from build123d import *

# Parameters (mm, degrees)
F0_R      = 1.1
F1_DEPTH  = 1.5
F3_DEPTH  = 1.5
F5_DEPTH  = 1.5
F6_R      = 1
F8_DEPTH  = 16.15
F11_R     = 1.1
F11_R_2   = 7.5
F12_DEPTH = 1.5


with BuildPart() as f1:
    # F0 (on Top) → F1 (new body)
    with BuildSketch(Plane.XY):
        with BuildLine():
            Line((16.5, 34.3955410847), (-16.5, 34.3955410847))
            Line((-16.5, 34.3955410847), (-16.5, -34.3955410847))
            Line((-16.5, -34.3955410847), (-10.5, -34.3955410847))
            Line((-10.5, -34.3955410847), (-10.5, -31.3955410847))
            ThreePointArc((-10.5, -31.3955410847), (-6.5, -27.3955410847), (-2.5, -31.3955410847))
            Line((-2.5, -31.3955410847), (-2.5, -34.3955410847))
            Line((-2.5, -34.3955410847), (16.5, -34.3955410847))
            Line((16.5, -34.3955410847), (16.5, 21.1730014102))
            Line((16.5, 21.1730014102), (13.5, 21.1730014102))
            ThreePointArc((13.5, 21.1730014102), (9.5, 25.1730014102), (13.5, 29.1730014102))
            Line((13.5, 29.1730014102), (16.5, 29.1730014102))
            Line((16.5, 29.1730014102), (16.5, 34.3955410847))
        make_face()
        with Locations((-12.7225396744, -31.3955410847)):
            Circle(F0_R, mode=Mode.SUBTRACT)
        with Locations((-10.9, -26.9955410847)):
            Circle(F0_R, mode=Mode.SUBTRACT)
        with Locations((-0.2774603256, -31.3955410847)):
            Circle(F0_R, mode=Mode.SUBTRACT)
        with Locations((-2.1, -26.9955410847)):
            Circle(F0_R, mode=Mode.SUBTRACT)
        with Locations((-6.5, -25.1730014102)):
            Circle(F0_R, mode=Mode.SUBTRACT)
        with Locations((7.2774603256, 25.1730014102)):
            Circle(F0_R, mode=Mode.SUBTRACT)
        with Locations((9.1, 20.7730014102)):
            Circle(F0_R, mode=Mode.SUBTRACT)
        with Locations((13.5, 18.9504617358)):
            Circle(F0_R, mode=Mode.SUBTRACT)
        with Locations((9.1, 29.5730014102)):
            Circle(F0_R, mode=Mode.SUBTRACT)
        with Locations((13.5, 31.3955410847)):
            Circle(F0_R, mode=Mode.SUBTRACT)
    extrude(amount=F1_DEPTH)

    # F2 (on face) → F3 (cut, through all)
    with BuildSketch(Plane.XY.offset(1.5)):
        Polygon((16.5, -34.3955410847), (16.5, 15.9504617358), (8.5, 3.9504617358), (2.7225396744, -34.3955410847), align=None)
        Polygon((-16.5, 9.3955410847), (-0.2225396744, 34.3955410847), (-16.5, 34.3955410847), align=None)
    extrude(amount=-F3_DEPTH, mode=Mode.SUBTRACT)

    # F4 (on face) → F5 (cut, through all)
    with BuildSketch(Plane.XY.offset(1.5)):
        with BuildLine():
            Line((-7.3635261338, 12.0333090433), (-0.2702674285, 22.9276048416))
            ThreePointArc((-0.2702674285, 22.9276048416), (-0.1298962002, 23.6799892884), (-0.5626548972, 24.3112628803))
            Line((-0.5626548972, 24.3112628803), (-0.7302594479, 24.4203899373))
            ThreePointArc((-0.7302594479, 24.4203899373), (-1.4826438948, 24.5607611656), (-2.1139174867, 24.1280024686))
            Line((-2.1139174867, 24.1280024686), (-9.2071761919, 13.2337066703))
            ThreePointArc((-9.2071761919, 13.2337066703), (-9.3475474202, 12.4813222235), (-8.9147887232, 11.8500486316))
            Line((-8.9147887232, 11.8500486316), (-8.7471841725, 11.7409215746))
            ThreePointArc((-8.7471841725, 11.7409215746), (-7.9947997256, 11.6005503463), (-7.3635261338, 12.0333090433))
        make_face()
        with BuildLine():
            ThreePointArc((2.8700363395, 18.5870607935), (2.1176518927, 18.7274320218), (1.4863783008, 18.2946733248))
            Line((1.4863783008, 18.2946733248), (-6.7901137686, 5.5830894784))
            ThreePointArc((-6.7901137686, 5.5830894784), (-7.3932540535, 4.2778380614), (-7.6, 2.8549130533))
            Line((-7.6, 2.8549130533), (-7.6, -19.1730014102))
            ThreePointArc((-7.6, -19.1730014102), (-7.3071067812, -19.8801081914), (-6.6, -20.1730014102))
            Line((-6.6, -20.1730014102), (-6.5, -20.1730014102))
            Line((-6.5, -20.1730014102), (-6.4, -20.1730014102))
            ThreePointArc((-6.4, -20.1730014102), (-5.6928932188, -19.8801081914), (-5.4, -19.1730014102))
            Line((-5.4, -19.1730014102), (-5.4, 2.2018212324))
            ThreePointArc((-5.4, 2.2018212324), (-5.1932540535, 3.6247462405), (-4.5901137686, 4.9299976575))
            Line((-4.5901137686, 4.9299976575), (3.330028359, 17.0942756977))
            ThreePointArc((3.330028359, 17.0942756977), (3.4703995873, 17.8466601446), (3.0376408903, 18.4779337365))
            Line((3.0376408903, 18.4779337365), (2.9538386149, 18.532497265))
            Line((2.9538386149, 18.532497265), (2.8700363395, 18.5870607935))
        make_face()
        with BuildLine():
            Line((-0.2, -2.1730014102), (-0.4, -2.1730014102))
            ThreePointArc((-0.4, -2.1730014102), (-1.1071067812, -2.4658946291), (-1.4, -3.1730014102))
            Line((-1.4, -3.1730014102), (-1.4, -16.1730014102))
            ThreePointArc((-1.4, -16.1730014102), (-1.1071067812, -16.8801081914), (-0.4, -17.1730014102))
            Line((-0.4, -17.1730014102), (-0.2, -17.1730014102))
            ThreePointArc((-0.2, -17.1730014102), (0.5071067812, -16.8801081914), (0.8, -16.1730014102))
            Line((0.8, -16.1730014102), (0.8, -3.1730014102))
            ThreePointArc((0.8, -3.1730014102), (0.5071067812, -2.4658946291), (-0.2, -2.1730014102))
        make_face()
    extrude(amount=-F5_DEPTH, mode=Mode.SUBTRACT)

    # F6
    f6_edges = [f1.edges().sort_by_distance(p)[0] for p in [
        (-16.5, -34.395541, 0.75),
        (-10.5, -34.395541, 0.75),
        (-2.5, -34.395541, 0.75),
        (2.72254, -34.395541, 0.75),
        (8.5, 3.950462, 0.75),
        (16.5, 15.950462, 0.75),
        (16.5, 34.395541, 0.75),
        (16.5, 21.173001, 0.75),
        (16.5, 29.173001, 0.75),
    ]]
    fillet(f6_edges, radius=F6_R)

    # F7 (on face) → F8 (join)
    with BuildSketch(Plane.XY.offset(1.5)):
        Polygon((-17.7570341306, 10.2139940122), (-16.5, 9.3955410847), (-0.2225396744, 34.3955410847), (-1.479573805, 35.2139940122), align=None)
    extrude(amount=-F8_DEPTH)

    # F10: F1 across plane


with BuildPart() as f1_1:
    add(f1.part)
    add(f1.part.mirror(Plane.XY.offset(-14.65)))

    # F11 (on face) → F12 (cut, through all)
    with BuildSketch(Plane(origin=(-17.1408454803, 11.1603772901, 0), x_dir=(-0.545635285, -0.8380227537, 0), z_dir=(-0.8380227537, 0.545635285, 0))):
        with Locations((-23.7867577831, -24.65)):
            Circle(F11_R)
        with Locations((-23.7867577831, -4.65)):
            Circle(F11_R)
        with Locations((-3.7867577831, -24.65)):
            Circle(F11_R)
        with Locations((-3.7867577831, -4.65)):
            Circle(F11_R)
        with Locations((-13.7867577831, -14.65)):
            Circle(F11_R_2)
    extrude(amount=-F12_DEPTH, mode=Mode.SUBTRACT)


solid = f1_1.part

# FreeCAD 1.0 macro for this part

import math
import FreeCAD as App
import Part
import Sketcher
from FreeCAD import Vector


def edges_at(feature, points):
    """Names of the edges that pass closest to the given points."""
    edges = feature.Shape.Edges
    near = lambda p: min(range(len(edges)), key=lambda i: edges[i].distToShape(Part.Vertex(*p))[0])
    return sorted({f"Edge{near(p) + 1}" for p in points})

doc = App.newDocument("Part")
body = doc.addObject("PartDesign::Body", "Body")

# Sketch on XY plane
sketch1 = body.newObject("Sketcher::SketchObject", "Sketch")
sketch1.AttachmentSupport = (doc.getObject("XY_Plane"), [""])
sketch1.MapMode = "FlatFace"
sketch1.addGeometry([
    Part.LineSegment(Vector(16.5, 34.4, 0), Vector(-16.5, 34.4, 0)),  # 0
    Part.LineSegment(Vector(-16.5, 34.4, 0), Vector(-16.5, -34.4, 0)),  # 1
    Part.LineSegment(Vector(-16.5, -34.4, 0), Vector(-10.5, -34.4, 0)),  # 2
    Part.LineSegment(Vector(-10.5, -34.4, 0), Vector(-10.5, -31.4, 0)),  # 3
    Part.ArcOfCircle(Part.Circle(Vector(-6.5, -31.4, 0), Vector(0, 0, 1), 4), math.radians(0), math.radians(180)),  # 4
    Part.LineSegment(Vector(-2.5, -31.4, 0), Vector(-2.5, -34.4, 0)),  # 5
    Part.LineSegment(Vector(-2.5, -34.4, 0), Vector(16.5, -34.4, 0)),  # 6
    Part.LineSegment(Vector(16.5, -34.4, 0), Vector(16.5, 21.2, 0)),  # 7
    Part.LineSegment(Vector(16.5, 21.2, 0), Vector(13.5, 21.2, 0)),  # 8
    Part.ArcOfCircle(Part.Circle(Vector(13.5, 25.2, 0), Vector(0, 0, 1), 4), math.radians(90), math.radians(270)),  # 9
    Part.LineSegment(Vector(13.5, 29.2, 0), Vector(16.5, 29.2, 0)),  # 10
    Part.LineSegment(Vector(16.5, 29.2, 0), Vector(16.5, 34.4, 0)),  # 11
    Part.Circle(Vector(-12.7, -31.4, 0), Vector(0, 0, 1), 1.1),  # 12
    Part.Circle(Vector(-10.9, -27, 0), Vector(0, 0, 1), 1.1),  # 13
    Part.Circle(Vector(-6.5, -25.2, 0), Vector(0, 0, 1), 1.1),  # 14
    Part.Circle(Vector(-0.3, -31.4, 0), Vector(0, 0, 1), 1.1),  # 15
    Part.Circle(Vector(-2.1, -27, 0), Vector(0, 0, 1), 1.1),  # 16
    Part.Circle(Vector(7.3, 25.2, 0), Vector(0, 0, 1), 1.1),  # 17
    Part.Circle(Vector(9.1, 20.8, 0), Vector(0, 0, 1), 1.1),  # 18
    Part.Circle(Vector(13.5, 19, 0), Vector(0, 0, 1), 1.1),  # 19
    Part.Circle(Vector(9.1, 29.6, 0), Vector(0, 0, 1), 1.1),  # 20
    Part.Circle(Vector(13.5, 31.4, 0), Vector(0, 0, 1), 1.1),  # 21
], False)
sketch1.addConstraint([
    Sketcher.Constraint("Coincident", 0, 2, 1, 1),
    Sketcher.Constraint("Coincident", 1, 2, 2, 1),
    Sketcher.Constraint("Coincident", 2, 2, 3, 1),
    Sketcher.Constraint("Tangent", 3, 2, 4, 2),
    Sketcher.Constraint("Tangent", 4, 1, 5, 1),
    Sketcher.Constraint("Coincident", 5, 2, 6, 1),
    Sketcher.Constraint("Coincident", 6, 2, 7, 1),
    Sketcher.Constraint("Coincident", 7, 2, 8, 1),
    Sketcher.Constraint("Tangent", 8, 2, 9, 2),
    Sketcher.Constraint("Tangent", 9, 1, 10, 1),
    Sketcher.Constraint("Coincident", 10, 2, 11, 1),
    Sketcher.Constraint("Coincident", 11, 2, 0, 1),
    Sketcher.Constraint("Horizontal", 0),
    Sketcher.Constraint("Vertical", 1),
    Sketcher.Constraint("Horizontal", 2),
    Sketcher.Constraint("Vertical", 3),
    Sketcher.Constraint("Vertical", 5),
    Sketcher.Constraint("Horizontal", 6),
    Sketcher.Constraint("Vertical", 7),
    Sketcher.Constraint("Horizontal", 8),
    Sketcher.Constraint("Horizontal", 10),
    Sketcher.Constraint("Vertical", 11),
    Sketcher.Constraint("Equal", 4, 9),
    Sketcher.Constraint("Equal", 12, 13),
    Sketcher.Constraint("Equal", 13, 14),
    Sketcher.Constraint("Equal", 14, 15),
    Sketcher.Constraint("Equal", 15, 16),
    Sketcher.Constraint("Equal", 16, 17),
    Sketcher.Constraint("Equal", 17, 18),
    Sketcher.Constraint("Equal", 18, 19),
    Sketcher.Constraint("Equal", 19, 20),
    Sketcher.Constraint("Equal", 20, 21),
    Sketcher.Constraint("Symmetric", 0, 2, 6, 2, -1, 1),
    Sketcher.Constraint("Symmetric", 1, 2, 11, 2, -1, 1),
    Sketcher.Constraint("Horizontal", 4, 3, 12, 3),
    Sketcher.Constraint("Horizontal", 12, 3, 15, 3),
    Sketcher.Constraint("Horizontal", 13, 3, 16, 3),
    Sketcher.Constraint("Horizontal", 9, 3, 17, 3),
    Sketcher.Constraint("Vertical", 4, 3, 14, 3),
    Sketcher.Constraint("Vertical", 9, 3, 19, 3),
    Sketcher.Constraint("Vertical", 18, 3, 20, 3),
    Sketcher.Constraint("Vertical", 19, 3, 21, 3),
    Sketcher.Constraint("Equal", 10, 3),
    Sketcher.Constraint("Radius", 4, 4.0),
    Sketcher.Constraint("Diameter", 12, 2.2),
    Sketcher.Constraint("DistanceX", 0, 2, 0, 1, 33.0),
    Sketcher.Constraint("DistanceX", 2, 1, 2, 2, 6.0),
    Sketcher.Constraint("DistanceX", 8, 2, 8, 1, 3.0),
    Sketcher.Constraint("DistanceX", 13, 3, 18, 3, 20.0),
    Sketcher.Constraint("DistanceY", 21, 3, 0, 2, 3.0),
    Sketcher.Constraint("DistanceX", 13, 3, -1, 1, 10.9),
    Sketcher.Constraint("DistanceX", 16, 3, -1, 1, 2.1),
    Sketcher.Constraint("DistanceY", 12, 3, 13, 3, 4.4),
    Sketcher.Constraint("DistanceY", 18, 3, 17, 3, 4.4),
    Sketcher.Constraint("DistanceY", 17, 3, 20, 3, 4.4),
    Sketcher.Constraint("DistanceY", -1, 1, 9, 3, 25.173001),
    Sketcher.Constraint("DistanceY", 14, 3, -1, 1, 25.173001),
    Sketcher.Constraint("DistanceY", 11, 1, 11, 2, 5.22254),
    Sketcher.Constraint("DistanceX", 12, 3, -1, 1, 12.72254),
    Sketcher.Constraint("DistanceX", 15, 3, -1, 1, 0.27746),
    Sketcher.Constraint("DistanceX", -1, 1, 17, 3, 7.27746),
    Sketcher.Constraint("DistanceY", -1, 1, 19, 3, 18.950462),
])
pad1 = body.newObject("PartDesign::Pad", "Pad")
pad1.Profile = sketch1
pad1.Length = 1.5

# Sketch on XY plane
sketch2 = body.newObject("Sketcher::SketchObject", "Sketch001")
sketch2.AttachmentSupport = (doc.getObject("XY_Plane"), [""])
sketch2.MapMode = "FlatFace"
sketch2.AttachmentOffset = App.Placement(Vector(0, 0, 1.5), App.Rotation())
sketch2.addGeometry([
    Part.LineSegment(Vector(16, -34, 0), Vector(16, 16, 0)),  # 0
    Part.LineSegment(Vector(16, 16, 0), Vector(8, 4, 0)),  # 1
    Part.LineSegment(Vector(8, 4, 0), Vector(3, -34, 0)),  # 2
    Part.LineSegment(Vector(3, -34, 0), Vector(16, -34, 0)),  # 3
    Part.LineSegment(Vector(-16, 9, 0), Vector(0, 34, 0)),  # 4
    Part.LineSegment(Vector(0, 34, 0), Vector(-16, 34, 0)),  # 5
    Part.LineSegment(Vector(-16, 34, 0), Vector(-16, 9, 0)),  # 6
], False)
sketch2.addConstraint([
    Sketcher.Constraint("Coincident", 0, 2, 1, 1),
    Sketcher.Constraint("Coincident", 1, 2, 2, 1),
    Sketcher.Constraint("Coincident", 2, 2, 3, 1),
    Sketcher.Constraint("Coincident", 3, 2, 0, 1),
    Sketcher.Constraint("Coincident", 4, 2, 5, 1),
    Sketcher.Constraint("Coincident", 5, 2, 6, 1),
    Sketcher.Constraint("Coincident", 6, 2, 4, 1),
    Sketcher.Constraint("Vertical", 0),
    Sketcher.Constraint("Horizontal", 3),
    Sketcher.Constraint("Horizontal", 5),
    Sketcher.Constraint("Vertical", 6),
    Sketcher.Constraint("Symmetric", 3, 2, 5, 2, -1, 1),
    Sketcher.Constraint("DistanceY", 6, 2, 6, 1, 25.0),
    Sketcher.Constraint("DistanceX", 1, 2, 0, 2, 8.0),
    Sketcher.Constraint("DistanceY", 1, 2, 0, 2, 12.0),
    Sketcher.Constraint("DistanceX", 5, 2, 0, 2, 33.0),
    Sketcher.Constraint("DistanceX", 3, 1, 3, 2, 13.77746),
    Sketcher.Constraint("DistanceX", 5, 2, 5, 1, 16.27746),
    Sketcher.Constraint("DistanceY", 0, 1, 0, 2, 50.346003),
    Sketcher.Constraint("DistanceY", -1, 1, 0, 2, 15.950462),
])
pocket1 = body.newObject("PartDesign::Pocket", "Pocket")
pocket1.Profile = sketch2
pocket1.Type = "ThroughAll"

# Sketch on XY plane
sketch3 = body.newObject("Sketcher::SketchObject", "Sketch002")
sketch3.AttachmentSupport = (doc.getObject("XY_Plane"), [""])
sketch3.MapMode = "FlatFace"
sketch3.AttachmentOffset = App.Placement(Vector(0, 0, 1.5), App.Rotation())
sketch3.addGeometry([
    Part.LineSegment(Vector(-7.36, 12.03, 0), Vector(-0.27, 22.93, 0)),  # 0
    Part.ArcOfCircle(Part.Circle(Vector(-1.11, 23.47, 0), Vector(0, 0, 1), 1), math.radians(-33), math.radians(57)),  # 1
    Part.LineSegment(Vector(-0.56, 24.31, 0), Vector(-0.73, 24.42, 0)),  # 2
    Part.ArcOfCircle(Part.Circle(Vector(-1.28, 23.58, 0), Vector(0, 0, 1), 1), math.radians(57), math.radians(147)),  # 3
    Part.LineSegment(Vector(-2.11, 24.13, 0), Vector(-9.21, 13.23, 0)),  # 4
    Part.ArcOfCircle(Part.Circle(Vector(-8.37, 12.69, 0), Vector(0, 0, 1), 1), math.radians(147), math.radians(237)),  # 5
    Part.LineSegment(Vector(-8.91, 11.85, 0), Vector(-8.75, 11.74, 0)),  # 6
    Part.ArcOfCircle(Part.Circle(Vector(-8.2, 12.58, 0), Vector(0, 0, 1), 1), math.radians(-123), math.radians(-33)),  # 7
    Part.ArcOfCircle(Part.Circle(Vector(2.32, 17.75, 0), Vector(0, 0, 1), 1), math.radians(57), math.radians(147)),  # 8
    Part.LineSegment(Vector(1.49, 18.29, 0), Vector(-6.79, 5.58, 0)),  # 9
    Part.ArcOfCircle(Part.Circle(Vector(-2.6, 2.85, 0), Vector(0, 0, 1), 5), math.radians(147), math.radians(180)),  # 10
    Part.LineSegment(Vector(-7.6, 2.85, 0), Vector(-7.6, -19.17, 0)),  # 11
    Part.ArcOfCircle(Part.Circle(Vector(-6.6, -19.17, 0), Vector(0, 0, 1), 1), math.radians(180), math.radians(270)),  # 12
    Part.LineSegment(Vector(-6.6, -20.17, 0), Vector(-6.4, -20.17, 0)),  # 13
    Part.ArcOfCircle(Part.Circle(Vector(-6.4, -19.17, 0), Vector(0, 0, 1), 1), math.radians(-90), math.radians(0)),  # 14
    Part.LineSegment(Vector(-5.4, -19.17, 0), Vector(-5.4, 2.2, 0)),  # 15
    Part.ArcOfCircle(Part.Circle(Vector(-0.4, 2.2, 0), Vector(0, 0, 1), 5), math.radians(147), math.radians(180)),  # 16
    Part.LineSegment(Vector(-4.59, 4.93, 0), Vector(3.33, 17.09, 0)),  # 17
    Part.ArcOfCircle(Part.Circle(Vector(2.49, 17.64, 0), Vector(0, 0, 1), 1), math.radians(-33), math.radians(57)),  # 18
    Part.LineSegment(Vector(3.04, 18.48, 0), Vector(2.87, 18.59, 0)),  # 19
    Part.LineSegment(Vector(-0.2, -2.17, 0), Vector(-0.4, -2.17, 0)),  # 20
    Part.ArcOfCircle(Part.Circle(Vector(-0.4, -3.17, 0), Vector(0, 0, 1), 1), math.radians(90), math.radians(180)),  # 21
    Part.LineSegment(Vector(-1.4, -3.17, 0), Vector(-1.4, -16.17, 0)),  # 22
    Part.ArcOfCircle(Part.Circle(Vector(-0.4, -16.17, 0), Vector(0, 0, 1), 1), math.radians(180), math.radians(270)),  # 23
    Part.LineSegment(Vector(-0.4, -17.17, 0), Vector(-0.2, -17.17, 0)),  # 24
    Part.ArcOfCircle(Part.Circle(Vector(-0.2, -16.17, 0), Vector(0, 0, 1), 1), math.radians(-90), math.radians(0)),  # 25
    Part.LineSegment(Vector(0.8, -16.17, 0), Vector(0.8, -3.17, 0)),  # 26
    Part.ArcOfCircle(Part.Circle(Vector(-0.2, -3.17, 0), Vector(0, 0, 1), 1), math.radians(0), math.radians(90)),  # 27
], False)
sketch3.addConstraint([
    Sketcher.Constraint("Tangent", 0, 2, 1, 1),
    Sketcher.Constraint("Tangent", 1, 2, 2, 1),
    Sketcher.Constraint("Tangent", 2, 2, 3, 1),
    Sketcher.Constraint("Tangent", 3, 2, 4, 1),
    Sketcher.Constraint("Tangent", 4, 2, 5, 1),
    Sketcher.Constraint("Tangent", 5, 2, 6, 1),
    Sketcher.Constraint("Tangent", 6, 2, 7, 1),
    Sketcher.Constraint("Tangent", 7, 2, 0, 1),
    Sketcher.Constraint("Tangent", 8, 2, 9, 1),
    Sketcher.Constraint("Tangent", 9, 2, 10, 1),
    Sketcher.Constraint("Tangent", 10, 2, 11, 1),
    Sketcher.Constraint("Tangent", 11, 2, 12, 1),
    Sketcher.Constraint("Tangent", 12, 2, 13, 1),
    Sketcher.Constraint("Tangent", 13, 2, 14, 1),
    Sketcher.Constraint("Tangent", 14, 2, 15, 1),
    Sketcher.Constraint("Tangent", 15, 2, 16, 2),
    Sketcher.Constraint("Tangent", 16, 1, 17, 1),
    Sketcher.Constraint("Tangent", 17, 2, 18, 1),
    Sketcher.Constraint("Tangent", 18, 2, 19, 1),
    Sketcher.Constraint("Tangent", 19, 2, 8, 1),
    Sketcher.Constraint("Tangent", 20, 2, 21, 1),
    Sketcher.Constraint("Tangent", 21, 2, 22, 1),
    Sketcher.Constraint("Tangent", 22, 2, 23, 1),
    Sketcher.Constraint("Tangent", 23, 2, 24, 1),
    Sketcher.Constraint("Tangent", 24, 2, 25, 1),
    Sketcher.Constraint("Tangent", 25, 2, 26, 1),
    Sketcher.Constraint("Tangent", 26, 2, 27, 1),
    Sketcher.Constraint("Tangent", 27, 2, 20, 1),
    Sketcher.Constraint("Vertical", 11),
    Sketcher.Constraint("Horizontal", 13),
    Sketcher.Constraint("Vertical", 15),
    Sketcher.Constraint("Horizontal", 20),
    Sketcher.Constraint("Vertical", 22),
    Sketcher.Constraint("Horizontal", 24),
    Sketcher.Constraint("Vertical", 26),
    Sketcher.Constraint("Equal", 1, 3),
    Sketcher.Constraint("Equal", 3, 5),
    Sketcher.Constraint("Equal", 5, 7),
    Sketcher.Constraint("Equal", 7, 8),
    Sketcher.Constraint("Equal", 8, 12),
    Sketcher.Constraint("Equal", 12, 14),
    Sketcher.Constraint("Equal", 10, 16),
    Sketcher.Constraint("Equal", 14, 18),
    Sketcher.Constraint("Equal", 18, 21),
    Sketcher.Constraint("Equal", 21, 23),
    Sketcher.Constraint("Equal", 23, 25),
    Sketcher.Constraint("Equal", 25, 27),
    Sketcher.Constraint("Perpendicular", 0, 2),
    Sketcher.Constraint("Perpendicular", 2, 4),
    Sketcher.Constraint("Perpendicular", 4, 6),
    Sketcher.Constraint("Perpendicular", 6, 9),
    Sketcher.Constraint("Parallel", 9, 17),
    Sketcher.Constraint("Perpendicular", 17, 19),
    Sketcher.Constraint("Vertical", 16, 3, 21, 3),
    Sketcher.Constraint("Equal", 13, 20),
    Sketcher.Constraint("Equal", 6, 19),
    Sketcher.Constraint("Radius", 1, 1.0),
    Sketcher.Constraint("Radius", 10, 5.0),
    Sketcher.Constraint("DistanceY", 22, 2, 22, 1, 13.0),
    Sketcher.Constraint("Distance", 0, 13.0),
    Sketcher.Constraint("DistanceX", 13, 1, 13, 2, 0.2),
    Sketcher.Constraint("DistanceY", 14, 3, 21, 3, 16.0),
    Sketcher.Constraint("Distance", 2, 0.2),
    Sketcher.Constraint("DistanceX", 10, 3, -1, 1, 2.6),
    Sketcher.Constraint("DistanceY", 12, 3, -1, 1, 19.173001),
    Sketcher.Constraint("DistanceX", -1, 1, 8, 3, 2.324401),
    Sketcher.Constraint("DistanceX", 3, 3, 18, 3, 3.7679),
    Sketcher.Constraint("Distance", 17, 14.515451),
    Sketcher.Constraint("DistanceY", 11, 2, 11, 1, 22.027914),
    Sketcher.Constraint("DistanceY", -1, 1, 1, 3, 23.47324),
])
pocket2 = body.newObject("PartDesign::Pocket", "Pocket001")
pocket2.Profile = sketch3
pocket2.Type = "ThroughAll"
doc.recompute()

fillet = body.newObject("PartDesign::Fillet", "Fillet")
fillet.Base = (pocket2, edges_at(pocket2, [
    (-16.5, -34.396, 0.75),
    (-10.5, -34.396, 0.75),
    (-2.5, -34.396, 0.75),
    (2.723, -34.396, 0.75),
    (8.5, 3.95, 0.75),
    (16.5, 15.95, 0.75),
    (16.5, 34.396, 0.75),
    (16.5, 21.173, 0.75),
    (16.5, 29.173, 0.75),
]))
fillet.Radius = 1

# Sketch on XY plane
sketch4 = body.newObject("Sketcher::SketchObject", "Sketch003")
sketch4.AttachmentSupport = (doc.getObject("XY_Plane"), [""])
sketch4.MapMode = "FlatFace"
sketch4.AttachmentOffset = App.Placement(Vector(0, 0, 1.5), App.Rotation())
sketch4.addGeometry([
    Part.LineSegment(Vector(-17.8, 10.2, 0), Vector(-16.5, 9.4, 0)),
    Part.LineSegment(Vector(-16.5, 9.4, 0), Vector(-0.2, 34.4, 0)),
    Part.LineSegment(Vector(-0.2, 34.4, 0), Vector(-1.5, 35.2, 0)),
    Part.LineSegment(Vector(-1.5, 35.2, 0), Vector(-17.8, 10.2, 0)),
], False)
sketch4.addConstraint([
    Sketcher.Constraint("Coincident", 0, 2, 1, 1),
    Sketcher.Constraint("Coincident", 1, 2, 2, 1),
    Sketcher.Constraint("Coincident", 2, 2, 3, 1),
    Sketcher.Constraint("Coincident", 3, 2, 0, 1),
    Sketcher.Constraint("Perpendicular", 0, 1),
    Sketcher.Constraint("Perpendicular", 1, 2),
    Sketcher.Constraint("Perpendicular", 2, 3),
    Sketcher.Constraint("DistanceY", 0, 2, 1, 2, 25.0),
    Sketcher.Constraint("Distance", 0, 1.5),
    Sketcher.Constraint("DistanceX", 0, 2, -1, 1, 16.5),
    Sketcher.Constraint("DistanceY", -1, 1, 0, 2, 9.395541),
    Sketcher.Constraint("DistanceX", 1, 2, -1, 1, 0.22254),
])
pad2 = body.newObject("PartDesign::Pad", "Pad001")
pad2.Profile = sketch4
pad2.Length = 16.15
pad2.Reversed = True
body2 = doc.addObject("PartDesign::Body", "Body001")
doc.recompute()

body2.BaseFeature = body
doc.recompute()

mirroring = doc.addObject("Part::Mirroring", "Mirroring")
mirroring.Source = body
mirroring.Base = Vector(0, 0, -14.65)
mirroring.Normal = Vector(0, 0, 1)
body3 = doc.addObject("PartDesign::Body", "Body002")
body3.BaseFeature = mirroring
boolean = body2.newObject("PartDesign::Boolean", "Boolean")
boolean.Type = "Fuse"
boolean.addObjects([body3])
doc.recompute()

# Sketch on an angled plane
sketch5 = body2.newObject("Sketcher::SketchObject", "Sketch004")
sketch5.Placement = App.Placement(Vector(-17.140845, 11.160377, 0), App.Rotation(Vector(-0.545635285, -0.838022754, 0), Vector(0, 0, 1), Vector(-0.838022754, 0.545635285, 0), "ZXY"))
sketch5.addGeometry([
    Part.Circle(Vector(-23.8, -24.7, 0), Vector(0, 0, 1), 1.1),  # 0
    Part.Circle(Vector(-23.8, -4.7, 0), Vector(0, 0, 1), 1.1),  # 1
    Part.Circle(Vector(-3.8, -24.7, 0), Vector(0, 0, 1), 1.1),  # 2
    Part.Circle(Vector(-3.8, -4.7, 0), Vector(0, 0, 1), 1.1),  # 3
    Part.Circle(Vector(-13.8, -14.7, 0), Vector(0, 0, 1), 7.5),  # 4
], False)
sketch5.addConstraint([
    Sketcher.Constraint("Equal", 0, 1),
    Sketcher.Constraint("Equal", 1, 2),
    Sketcher.Constraint("Equal", 2, 3),
    Sketcher.Constraint("Horizontal", 0, 3, 2, 3),
    Sketcher.Constraint("Horizontal", 1, 3, 3, 3),
    Sketcher.Constraint("Vertical", 0, 3, 1, 3),
    Sketcher.Constraint("Vertical", 2, 3, 3, 3),
    Sketcher.Constraint("Diameter", 4, 15.0),
    Sketcher.Constraint("Diameter", 0, 2.2),
    Sketcher.Constraint("DistanceY", 0, 3, 1, 3, 20.0),
    Sketcher.Constraint("DistanceX", 0, 3, 2, 3, 20.0),
    Sketcher.Constraint("DistanceX", 4, 3, 3, 3, 10.0),
    Sketcher.Constraint("DistanceY", 4, 3, 3, 3, 10.0),
    Sketcher.Constraint("DistanceY", 0, 3, -1, 1, 24.65),
    Sketcher.Constraint("DistanceX", 0, 3, -1, 1, 23.786758),
])
pocket3 = body2.newObject("PartDesign::Pocket", "Pocket002")
pocket3.Profile = sketch5
pocket3.Type = "ThroughAll"
mirroring.Visibility = False

doc.recompute()
